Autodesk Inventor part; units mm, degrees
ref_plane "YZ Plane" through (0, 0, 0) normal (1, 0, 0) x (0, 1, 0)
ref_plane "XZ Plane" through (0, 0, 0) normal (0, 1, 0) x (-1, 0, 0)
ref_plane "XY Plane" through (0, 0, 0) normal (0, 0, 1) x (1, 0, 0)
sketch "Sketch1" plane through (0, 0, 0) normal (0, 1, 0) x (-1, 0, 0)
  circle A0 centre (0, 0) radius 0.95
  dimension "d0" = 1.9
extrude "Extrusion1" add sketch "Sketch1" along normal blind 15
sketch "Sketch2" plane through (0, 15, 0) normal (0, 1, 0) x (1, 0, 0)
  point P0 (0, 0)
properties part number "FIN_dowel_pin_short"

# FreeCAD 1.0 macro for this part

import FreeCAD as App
import Part
import Sketcher

doc = App.newDocument("Part")
body = doc.addObject("PartDesign::Body", "Body")

sketch1 = body.newObject("Sketcher::SketchObject", "Sketch")
sketch1.AttachmentSupport = (doc.getObject("XZ_Plane"), [""])
sketch1.MapMode = "FlatFace"
sketch1.addGeometry(Part.Circle(App.Vector(0, 0, 0), App.Vector(0, 0, 1), 0.9), False)
sketch1.addConstraint([
    Sketcher.Constraint("Coincident", 0, 3, -1, 1),
    Sketcher.Constraint("Diameter", 0, 1.9),
])
pad1 = body.newObject("PartDesign::Pad", "Pad")
pad1.Profile = sketch1
pad1.Length = 15
pad1.Reversed = True

doc.recompute()
